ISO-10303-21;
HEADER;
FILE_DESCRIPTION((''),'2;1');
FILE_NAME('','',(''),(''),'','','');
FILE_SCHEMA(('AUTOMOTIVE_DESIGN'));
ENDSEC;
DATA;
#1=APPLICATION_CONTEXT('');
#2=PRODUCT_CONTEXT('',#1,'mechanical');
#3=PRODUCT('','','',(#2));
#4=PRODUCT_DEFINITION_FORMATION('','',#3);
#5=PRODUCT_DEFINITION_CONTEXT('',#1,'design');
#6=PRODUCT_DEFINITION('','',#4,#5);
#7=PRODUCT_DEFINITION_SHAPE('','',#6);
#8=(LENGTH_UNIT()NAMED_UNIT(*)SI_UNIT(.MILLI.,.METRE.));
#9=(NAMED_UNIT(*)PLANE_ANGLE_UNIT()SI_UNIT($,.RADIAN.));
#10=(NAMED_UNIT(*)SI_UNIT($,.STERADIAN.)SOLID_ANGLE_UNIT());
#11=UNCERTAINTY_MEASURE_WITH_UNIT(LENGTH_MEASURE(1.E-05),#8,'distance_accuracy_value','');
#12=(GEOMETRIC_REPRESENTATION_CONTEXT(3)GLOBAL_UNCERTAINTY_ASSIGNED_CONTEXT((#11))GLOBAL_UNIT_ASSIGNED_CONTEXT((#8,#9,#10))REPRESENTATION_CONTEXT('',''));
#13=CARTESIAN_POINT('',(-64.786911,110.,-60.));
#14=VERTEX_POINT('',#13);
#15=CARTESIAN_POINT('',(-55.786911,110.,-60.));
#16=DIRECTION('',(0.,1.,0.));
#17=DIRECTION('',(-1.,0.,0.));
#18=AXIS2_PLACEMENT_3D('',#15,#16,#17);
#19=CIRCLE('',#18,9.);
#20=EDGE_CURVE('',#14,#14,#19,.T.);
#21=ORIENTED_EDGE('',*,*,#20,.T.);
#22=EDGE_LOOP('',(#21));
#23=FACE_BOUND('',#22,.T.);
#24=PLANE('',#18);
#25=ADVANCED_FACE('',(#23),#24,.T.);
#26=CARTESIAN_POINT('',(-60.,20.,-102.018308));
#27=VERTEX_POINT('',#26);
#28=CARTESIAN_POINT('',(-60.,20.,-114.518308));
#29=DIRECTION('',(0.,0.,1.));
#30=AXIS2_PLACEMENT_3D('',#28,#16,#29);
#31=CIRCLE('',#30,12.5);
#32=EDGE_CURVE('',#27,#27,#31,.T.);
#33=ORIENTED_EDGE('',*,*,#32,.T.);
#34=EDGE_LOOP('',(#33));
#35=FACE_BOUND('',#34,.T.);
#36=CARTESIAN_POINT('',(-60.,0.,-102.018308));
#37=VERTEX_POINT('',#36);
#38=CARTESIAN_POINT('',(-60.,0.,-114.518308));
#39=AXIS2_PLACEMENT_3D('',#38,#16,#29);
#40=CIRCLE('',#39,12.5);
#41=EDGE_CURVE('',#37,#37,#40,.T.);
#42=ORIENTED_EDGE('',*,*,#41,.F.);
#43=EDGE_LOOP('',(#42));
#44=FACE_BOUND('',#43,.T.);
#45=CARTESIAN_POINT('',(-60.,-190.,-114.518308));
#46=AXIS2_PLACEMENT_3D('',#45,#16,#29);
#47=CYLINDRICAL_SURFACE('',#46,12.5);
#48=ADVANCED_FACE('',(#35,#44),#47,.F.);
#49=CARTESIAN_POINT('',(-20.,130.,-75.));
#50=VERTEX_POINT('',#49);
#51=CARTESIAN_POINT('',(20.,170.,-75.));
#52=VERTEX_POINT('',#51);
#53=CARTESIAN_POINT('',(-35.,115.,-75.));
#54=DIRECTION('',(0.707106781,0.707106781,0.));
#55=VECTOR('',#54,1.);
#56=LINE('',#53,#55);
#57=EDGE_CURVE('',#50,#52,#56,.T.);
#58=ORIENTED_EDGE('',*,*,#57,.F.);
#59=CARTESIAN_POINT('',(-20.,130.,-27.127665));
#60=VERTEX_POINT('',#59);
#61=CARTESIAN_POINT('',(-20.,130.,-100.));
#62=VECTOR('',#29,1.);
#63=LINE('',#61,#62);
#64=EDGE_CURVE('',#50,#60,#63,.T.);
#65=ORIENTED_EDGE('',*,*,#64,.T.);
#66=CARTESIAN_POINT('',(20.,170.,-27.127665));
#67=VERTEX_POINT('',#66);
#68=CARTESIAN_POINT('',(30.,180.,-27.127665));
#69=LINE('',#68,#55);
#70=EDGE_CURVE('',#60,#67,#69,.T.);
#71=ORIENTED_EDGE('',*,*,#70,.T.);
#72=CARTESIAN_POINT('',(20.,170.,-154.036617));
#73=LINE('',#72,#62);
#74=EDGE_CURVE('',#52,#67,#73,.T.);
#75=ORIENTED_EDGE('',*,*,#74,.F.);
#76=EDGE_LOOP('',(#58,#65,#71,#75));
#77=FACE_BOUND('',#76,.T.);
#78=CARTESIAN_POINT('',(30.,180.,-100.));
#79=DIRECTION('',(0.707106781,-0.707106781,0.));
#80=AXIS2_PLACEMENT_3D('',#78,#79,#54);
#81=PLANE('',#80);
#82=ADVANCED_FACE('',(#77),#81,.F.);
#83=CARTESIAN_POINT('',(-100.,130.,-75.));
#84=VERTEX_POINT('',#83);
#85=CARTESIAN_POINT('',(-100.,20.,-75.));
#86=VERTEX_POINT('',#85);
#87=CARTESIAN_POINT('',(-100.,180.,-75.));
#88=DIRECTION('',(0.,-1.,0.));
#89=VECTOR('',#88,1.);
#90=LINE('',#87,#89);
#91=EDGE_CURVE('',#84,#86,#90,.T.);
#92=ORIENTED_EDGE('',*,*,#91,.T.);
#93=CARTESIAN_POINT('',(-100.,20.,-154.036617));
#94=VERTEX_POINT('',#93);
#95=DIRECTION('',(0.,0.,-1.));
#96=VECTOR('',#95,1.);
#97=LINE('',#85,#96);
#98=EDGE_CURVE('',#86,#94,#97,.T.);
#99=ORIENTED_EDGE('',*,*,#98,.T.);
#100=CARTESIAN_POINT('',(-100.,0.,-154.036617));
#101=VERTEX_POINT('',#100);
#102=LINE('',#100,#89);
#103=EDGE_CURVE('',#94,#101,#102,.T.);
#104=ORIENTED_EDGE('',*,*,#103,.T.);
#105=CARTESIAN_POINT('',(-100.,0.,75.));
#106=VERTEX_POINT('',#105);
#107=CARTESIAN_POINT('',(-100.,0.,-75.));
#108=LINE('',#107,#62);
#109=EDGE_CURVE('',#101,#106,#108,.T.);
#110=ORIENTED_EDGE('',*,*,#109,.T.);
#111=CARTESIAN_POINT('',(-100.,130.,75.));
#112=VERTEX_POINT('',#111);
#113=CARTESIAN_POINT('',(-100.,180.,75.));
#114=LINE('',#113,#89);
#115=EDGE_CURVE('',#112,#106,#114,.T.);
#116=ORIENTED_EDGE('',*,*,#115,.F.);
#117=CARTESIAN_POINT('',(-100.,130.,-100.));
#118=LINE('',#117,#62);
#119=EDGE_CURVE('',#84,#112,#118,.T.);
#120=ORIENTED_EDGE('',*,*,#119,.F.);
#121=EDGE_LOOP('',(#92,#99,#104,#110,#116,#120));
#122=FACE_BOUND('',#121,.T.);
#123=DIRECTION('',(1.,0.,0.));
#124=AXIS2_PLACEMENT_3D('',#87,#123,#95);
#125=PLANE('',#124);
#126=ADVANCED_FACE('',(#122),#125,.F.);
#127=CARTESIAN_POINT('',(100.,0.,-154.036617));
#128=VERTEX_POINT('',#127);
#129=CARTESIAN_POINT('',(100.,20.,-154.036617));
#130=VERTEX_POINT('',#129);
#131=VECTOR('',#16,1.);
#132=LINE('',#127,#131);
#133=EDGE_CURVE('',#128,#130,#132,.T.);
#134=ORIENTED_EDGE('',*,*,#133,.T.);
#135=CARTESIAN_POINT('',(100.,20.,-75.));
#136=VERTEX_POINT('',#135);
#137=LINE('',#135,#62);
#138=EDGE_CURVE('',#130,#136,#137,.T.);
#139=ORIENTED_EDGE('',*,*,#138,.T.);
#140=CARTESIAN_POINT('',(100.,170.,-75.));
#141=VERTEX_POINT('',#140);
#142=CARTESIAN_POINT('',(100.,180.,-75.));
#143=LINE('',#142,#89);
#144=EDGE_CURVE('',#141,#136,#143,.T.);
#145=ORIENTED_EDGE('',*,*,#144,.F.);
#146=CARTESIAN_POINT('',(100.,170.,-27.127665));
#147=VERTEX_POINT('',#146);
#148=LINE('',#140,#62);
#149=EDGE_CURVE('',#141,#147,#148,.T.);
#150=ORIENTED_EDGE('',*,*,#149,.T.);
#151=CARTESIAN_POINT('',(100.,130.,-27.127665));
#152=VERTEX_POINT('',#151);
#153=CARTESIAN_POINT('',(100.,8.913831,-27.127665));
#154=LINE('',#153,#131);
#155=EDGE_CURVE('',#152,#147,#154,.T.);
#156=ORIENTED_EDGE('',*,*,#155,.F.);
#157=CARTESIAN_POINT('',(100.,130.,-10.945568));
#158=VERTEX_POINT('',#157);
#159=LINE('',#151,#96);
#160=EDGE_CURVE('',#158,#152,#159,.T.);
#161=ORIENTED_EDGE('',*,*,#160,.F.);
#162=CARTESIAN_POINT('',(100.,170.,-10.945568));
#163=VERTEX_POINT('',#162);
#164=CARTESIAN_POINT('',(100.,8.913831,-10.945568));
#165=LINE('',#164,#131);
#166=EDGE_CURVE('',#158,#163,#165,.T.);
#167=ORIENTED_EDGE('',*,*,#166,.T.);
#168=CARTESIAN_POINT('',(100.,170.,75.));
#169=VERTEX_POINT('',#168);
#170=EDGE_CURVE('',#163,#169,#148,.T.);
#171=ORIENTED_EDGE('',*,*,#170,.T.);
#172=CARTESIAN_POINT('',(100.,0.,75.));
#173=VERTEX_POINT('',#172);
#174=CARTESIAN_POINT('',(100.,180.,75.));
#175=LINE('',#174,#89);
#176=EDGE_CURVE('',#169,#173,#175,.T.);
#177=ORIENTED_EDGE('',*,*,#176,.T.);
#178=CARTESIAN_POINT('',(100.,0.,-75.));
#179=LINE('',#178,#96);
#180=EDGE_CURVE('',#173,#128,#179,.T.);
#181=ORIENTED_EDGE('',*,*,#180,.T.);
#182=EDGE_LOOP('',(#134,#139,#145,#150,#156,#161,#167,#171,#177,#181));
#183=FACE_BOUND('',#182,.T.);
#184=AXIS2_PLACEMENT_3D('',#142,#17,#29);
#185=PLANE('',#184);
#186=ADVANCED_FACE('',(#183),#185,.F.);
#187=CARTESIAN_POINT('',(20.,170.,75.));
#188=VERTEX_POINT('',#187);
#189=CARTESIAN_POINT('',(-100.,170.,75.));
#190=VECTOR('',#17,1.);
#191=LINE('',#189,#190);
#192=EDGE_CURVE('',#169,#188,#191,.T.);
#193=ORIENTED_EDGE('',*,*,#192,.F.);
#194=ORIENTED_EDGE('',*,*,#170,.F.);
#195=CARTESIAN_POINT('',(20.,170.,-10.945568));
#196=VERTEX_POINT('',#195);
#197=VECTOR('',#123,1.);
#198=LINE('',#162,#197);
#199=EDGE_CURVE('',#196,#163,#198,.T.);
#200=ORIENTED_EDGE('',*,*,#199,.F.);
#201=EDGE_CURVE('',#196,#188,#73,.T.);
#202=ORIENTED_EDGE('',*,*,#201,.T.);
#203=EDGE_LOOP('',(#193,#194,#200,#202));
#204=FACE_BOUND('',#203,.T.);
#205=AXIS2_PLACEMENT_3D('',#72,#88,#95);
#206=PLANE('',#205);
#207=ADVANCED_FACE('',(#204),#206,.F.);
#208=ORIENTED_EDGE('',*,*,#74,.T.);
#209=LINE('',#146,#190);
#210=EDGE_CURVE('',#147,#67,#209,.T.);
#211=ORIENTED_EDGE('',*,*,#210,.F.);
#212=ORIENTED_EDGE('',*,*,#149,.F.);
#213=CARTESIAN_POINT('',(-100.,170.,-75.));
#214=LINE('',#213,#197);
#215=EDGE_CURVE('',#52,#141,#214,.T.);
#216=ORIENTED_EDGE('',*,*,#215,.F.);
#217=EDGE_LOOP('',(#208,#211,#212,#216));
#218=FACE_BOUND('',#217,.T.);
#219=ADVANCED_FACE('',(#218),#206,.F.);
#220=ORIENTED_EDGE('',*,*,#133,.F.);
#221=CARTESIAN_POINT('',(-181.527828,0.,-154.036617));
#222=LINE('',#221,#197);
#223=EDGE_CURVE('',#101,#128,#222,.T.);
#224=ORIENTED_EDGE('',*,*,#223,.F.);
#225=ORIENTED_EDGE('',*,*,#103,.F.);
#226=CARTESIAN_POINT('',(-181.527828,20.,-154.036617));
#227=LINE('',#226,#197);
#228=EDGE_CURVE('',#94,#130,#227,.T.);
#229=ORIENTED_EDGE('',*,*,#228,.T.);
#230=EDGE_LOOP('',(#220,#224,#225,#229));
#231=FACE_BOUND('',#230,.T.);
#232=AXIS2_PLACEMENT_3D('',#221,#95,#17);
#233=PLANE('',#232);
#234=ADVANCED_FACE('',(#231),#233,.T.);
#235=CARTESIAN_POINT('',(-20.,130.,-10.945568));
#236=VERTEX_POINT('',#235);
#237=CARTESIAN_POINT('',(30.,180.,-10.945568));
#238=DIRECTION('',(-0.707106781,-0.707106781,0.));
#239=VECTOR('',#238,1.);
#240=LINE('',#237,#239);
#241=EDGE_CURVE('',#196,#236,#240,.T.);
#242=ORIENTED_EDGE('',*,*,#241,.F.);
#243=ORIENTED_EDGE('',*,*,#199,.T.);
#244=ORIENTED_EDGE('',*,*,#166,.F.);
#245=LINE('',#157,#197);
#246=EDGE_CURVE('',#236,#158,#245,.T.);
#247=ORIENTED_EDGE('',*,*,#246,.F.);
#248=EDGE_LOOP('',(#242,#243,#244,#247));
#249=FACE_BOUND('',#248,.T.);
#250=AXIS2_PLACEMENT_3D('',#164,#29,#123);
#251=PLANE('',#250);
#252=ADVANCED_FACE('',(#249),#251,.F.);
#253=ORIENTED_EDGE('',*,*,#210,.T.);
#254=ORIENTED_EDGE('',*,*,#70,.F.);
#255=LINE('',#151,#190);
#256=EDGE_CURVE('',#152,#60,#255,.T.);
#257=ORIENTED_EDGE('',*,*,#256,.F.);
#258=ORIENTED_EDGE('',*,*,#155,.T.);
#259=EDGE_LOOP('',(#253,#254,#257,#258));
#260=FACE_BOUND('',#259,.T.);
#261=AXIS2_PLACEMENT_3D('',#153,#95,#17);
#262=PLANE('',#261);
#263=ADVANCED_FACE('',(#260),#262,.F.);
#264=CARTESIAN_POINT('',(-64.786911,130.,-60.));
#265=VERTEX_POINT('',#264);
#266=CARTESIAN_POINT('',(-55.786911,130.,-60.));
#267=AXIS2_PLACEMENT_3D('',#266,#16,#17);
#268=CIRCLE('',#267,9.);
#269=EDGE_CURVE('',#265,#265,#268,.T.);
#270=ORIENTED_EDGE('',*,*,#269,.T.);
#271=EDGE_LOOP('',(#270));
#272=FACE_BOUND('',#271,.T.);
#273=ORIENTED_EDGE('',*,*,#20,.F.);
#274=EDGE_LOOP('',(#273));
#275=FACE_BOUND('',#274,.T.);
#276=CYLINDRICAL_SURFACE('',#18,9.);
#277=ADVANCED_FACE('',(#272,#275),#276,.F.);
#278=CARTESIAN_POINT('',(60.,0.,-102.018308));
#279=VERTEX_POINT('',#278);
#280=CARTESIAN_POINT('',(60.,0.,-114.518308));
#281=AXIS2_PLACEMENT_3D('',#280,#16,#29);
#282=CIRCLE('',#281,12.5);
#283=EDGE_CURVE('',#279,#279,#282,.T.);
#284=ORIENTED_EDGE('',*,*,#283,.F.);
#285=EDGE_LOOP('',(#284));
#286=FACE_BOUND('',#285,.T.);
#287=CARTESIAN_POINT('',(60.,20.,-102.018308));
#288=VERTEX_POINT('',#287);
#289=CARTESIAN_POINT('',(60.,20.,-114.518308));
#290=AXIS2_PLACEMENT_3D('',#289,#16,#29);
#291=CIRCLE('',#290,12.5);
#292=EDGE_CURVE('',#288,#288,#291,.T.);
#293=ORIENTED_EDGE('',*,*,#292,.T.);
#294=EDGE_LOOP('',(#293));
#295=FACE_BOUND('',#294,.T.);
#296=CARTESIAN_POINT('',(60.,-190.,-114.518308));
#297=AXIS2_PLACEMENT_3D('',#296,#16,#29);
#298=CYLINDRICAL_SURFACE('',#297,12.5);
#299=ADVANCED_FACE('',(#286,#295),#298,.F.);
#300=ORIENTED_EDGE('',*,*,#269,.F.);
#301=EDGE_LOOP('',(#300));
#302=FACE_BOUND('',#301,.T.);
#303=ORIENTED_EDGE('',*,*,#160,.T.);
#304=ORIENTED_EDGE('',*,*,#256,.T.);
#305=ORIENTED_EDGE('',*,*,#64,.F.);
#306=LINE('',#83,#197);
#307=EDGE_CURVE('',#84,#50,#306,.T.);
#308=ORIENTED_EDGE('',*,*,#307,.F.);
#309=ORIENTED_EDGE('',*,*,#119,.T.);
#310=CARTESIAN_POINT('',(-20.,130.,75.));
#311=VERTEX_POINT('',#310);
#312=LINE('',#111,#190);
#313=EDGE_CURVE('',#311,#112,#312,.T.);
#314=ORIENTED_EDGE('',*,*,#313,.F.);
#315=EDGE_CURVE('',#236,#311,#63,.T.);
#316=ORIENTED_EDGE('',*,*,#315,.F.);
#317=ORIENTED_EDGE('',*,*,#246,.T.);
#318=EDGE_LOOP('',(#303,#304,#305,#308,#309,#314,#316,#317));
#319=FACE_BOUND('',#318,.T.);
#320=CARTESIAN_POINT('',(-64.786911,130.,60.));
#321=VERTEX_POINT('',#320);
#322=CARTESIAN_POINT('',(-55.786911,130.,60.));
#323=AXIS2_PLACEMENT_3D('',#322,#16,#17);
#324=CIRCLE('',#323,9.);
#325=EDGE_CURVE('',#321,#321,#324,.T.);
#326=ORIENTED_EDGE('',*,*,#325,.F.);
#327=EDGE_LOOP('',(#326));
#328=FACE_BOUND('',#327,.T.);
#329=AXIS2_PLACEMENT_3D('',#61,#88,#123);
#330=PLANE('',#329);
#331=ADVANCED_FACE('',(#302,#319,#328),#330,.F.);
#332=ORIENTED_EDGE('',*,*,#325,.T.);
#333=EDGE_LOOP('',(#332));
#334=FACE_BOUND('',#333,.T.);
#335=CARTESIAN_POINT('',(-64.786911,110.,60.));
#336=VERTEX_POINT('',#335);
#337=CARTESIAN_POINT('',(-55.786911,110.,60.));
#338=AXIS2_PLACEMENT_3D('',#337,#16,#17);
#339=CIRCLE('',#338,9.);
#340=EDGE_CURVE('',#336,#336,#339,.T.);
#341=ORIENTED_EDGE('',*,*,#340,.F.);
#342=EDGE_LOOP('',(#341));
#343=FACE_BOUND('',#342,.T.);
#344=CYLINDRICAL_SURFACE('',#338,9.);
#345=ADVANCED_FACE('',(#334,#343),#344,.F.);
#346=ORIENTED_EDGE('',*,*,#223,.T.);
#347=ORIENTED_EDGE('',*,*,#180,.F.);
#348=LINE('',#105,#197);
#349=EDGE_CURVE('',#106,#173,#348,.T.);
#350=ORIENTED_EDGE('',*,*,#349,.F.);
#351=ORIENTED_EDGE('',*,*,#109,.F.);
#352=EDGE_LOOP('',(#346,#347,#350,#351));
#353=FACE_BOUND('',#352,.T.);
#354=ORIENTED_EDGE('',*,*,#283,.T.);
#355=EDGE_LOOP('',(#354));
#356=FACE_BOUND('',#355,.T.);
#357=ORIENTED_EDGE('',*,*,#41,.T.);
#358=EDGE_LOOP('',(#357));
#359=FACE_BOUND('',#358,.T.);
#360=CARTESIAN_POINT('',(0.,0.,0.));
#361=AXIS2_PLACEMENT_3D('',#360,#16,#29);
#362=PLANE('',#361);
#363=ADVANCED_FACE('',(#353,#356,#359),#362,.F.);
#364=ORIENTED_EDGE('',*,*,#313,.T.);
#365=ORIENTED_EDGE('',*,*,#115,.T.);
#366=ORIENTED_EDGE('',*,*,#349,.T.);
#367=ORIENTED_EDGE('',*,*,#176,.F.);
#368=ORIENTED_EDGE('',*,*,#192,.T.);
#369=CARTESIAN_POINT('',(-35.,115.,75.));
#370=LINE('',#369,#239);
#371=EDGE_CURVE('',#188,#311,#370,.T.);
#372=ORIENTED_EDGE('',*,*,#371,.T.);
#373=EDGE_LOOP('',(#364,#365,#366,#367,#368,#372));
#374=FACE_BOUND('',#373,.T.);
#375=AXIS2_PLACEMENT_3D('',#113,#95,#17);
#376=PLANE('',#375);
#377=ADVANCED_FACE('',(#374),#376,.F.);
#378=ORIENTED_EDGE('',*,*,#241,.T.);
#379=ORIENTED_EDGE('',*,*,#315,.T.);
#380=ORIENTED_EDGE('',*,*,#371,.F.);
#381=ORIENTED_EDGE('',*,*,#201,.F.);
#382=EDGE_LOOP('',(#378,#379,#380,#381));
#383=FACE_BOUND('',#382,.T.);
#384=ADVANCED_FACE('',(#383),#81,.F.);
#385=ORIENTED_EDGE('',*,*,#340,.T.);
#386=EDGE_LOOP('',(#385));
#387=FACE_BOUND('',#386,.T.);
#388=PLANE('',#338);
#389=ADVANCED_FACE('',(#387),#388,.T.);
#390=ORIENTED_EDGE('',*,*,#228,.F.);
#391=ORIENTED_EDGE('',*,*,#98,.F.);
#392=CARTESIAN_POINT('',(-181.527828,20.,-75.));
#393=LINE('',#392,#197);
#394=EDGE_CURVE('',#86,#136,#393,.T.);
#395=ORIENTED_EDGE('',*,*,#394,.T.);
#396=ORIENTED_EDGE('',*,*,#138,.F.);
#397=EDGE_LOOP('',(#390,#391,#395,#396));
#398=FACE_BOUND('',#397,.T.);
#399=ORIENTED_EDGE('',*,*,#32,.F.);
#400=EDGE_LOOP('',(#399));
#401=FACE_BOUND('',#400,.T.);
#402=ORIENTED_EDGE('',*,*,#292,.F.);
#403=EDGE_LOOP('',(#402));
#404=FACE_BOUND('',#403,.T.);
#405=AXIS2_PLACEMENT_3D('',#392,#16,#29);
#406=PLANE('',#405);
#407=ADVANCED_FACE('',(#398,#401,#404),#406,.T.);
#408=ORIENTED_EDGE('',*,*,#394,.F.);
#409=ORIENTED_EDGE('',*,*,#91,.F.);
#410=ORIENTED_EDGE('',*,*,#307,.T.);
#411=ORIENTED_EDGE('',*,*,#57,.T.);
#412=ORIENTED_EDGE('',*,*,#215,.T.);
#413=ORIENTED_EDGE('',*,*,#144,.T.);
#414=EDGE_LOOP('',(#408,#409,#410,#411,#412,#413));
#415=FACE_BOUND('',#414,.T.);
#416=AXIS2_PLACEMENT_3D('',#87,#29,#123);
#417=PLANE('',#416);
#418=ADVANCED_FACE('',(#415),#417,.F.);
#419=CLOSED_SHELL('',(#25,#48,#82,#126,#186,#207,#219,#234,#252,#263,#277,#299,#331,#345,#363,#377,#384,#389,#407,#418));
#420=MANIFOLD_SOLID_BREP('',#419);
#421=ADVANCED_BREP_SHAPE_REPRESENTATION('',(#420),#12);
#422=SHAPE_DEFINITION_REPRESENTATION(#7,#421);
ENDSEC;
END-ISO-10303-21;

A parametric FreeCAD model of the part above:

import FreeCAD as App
import Part
import Sketcher
Q = App.Units.Quantity


def add_polygon(sketch, points):
    """Adds a closed chain of lines whose ends are joined by coincident constraints."""
    first, n = sketch.GeometryCount, len(points)
    for a, b in zip(points, points[1:] + points[:1]):
        sketch.addGeometry(Part.LineSegment(App.Vector(*a, 0), App.Vector(*b, 0)), False)
    for i in range(n):
        sketch.addConstraint(Sketcher.Constraint("Coincident", first + i, 2, first + (i + 1) % n, 1))

doc = App.newDocument("Part")
body = doc.addObject("PartDesign::Body", "Body")

# Sketch on XZ plane
sketch1 = body.newObject("Sketcher::SketchObject", "Sketch")
sketch1.AttachmentSupport = (doc.getObject("XZ_Plane"), [""])
sketch1.MapMode = "FlatFace"
add_polygon(sketch1, [(-100, -75), (-100, 75), (100, 75), (100, -75)])  # lines 0-3
sketch1.addConstraint([
    Sketcher.Constraint("Vertical", 0),
    Sketcher.Constraint("Horizontal", 1),
    Sketcher.Constraint("Vertical", 2),
    Sketcher.Constraint("Horizontal", 3),
    Sketcher.Constraint("Symmetric", 0, 2, 2, 2, -1, 1),
    Sketcher.Constraint("DistanceX", 1, 1, 1, 2, Q("200 mm")),
    Sketcher.Constraint("DistanceY", 0, 1, 0, 2, Q("150 mm")),
])
pad1 = body.newObject("PartDesign::Pad", "Pad")
pad1.Profile = sketch1
pad1.Length = 180
pad1.Reversed = True

# Sketch on XY plane
sketch2 = body.newObject("Sketcher::SketchObject", "Sketch001")
sketch2.AttachmentSupport = (doc.getObject("XY_Plane"), [""])
sketch2.MapMode = "FlatFace"
add_polygon(sketch2, [(30, 180), (-100, 180), (-100, 130), (-20, 130)])  # lines 0-3
sketch2.addConstraint([
    Sketcher.Constraint("Horizontal", 0),
    Sketcher.Constraint("Vertical", 1),
    Sketcher.Constraint("Horizontal", 2),
    Sketcher.Constraint("DistanceX", 0, 2, 0, 1, Q("130 mm")),
    Sketcher.Constraint("DistanceX", 2, 1, 2, 2, Q("80 mm")),
    Sketcher.Constraint("DistanceY", 1, 2, 1, 1, Q("50 mm")),
    Sketcher.Constraint("DistanceX", 0, 2, -1, 1, Q("100 mm")),
    Sketcher.Constraint("DistanceY", -1, 1, 0, 2, Q("180 mm")),
])
pocket1 = body.newObject("PartDesign::Pocket", "Pocket")
pocket1.Profile = sketch2
pocket1.Length = 200
pocket1.Midplane = True

# Sketch on XZ plane
sketch3 = body.newObject("Sketcher::SketchObject", "Sketch002")
sketch3.AttachmentSupport = (doc.getObject("XZ_Plane"), [""])
sketch3.MapMode = "FlatFace"
sketch3.AttachmentOffset = App.Placement(App.Vector(0, 0, -180), App.Rotation())
add_polygon(sketch3, [(-20, -27), (-20, -11), (100, -11), (100, -27)])  # lines 0-3
sketch3.addConstraint([
    Sketcher.Constraint("Vertical", 0),
    Sketcher.Constraint("Horizontal", 1),
    Sketcher.Constraint("Vertical", 2),
    Sketcher.Constraint("Horizontal", 3),
    Sketcher.Constraint("DistanceX", 1, 1, 1, 2, Q("120 mm")),
    Sketcher.Constraint("DistanceX", 0, 2, -1, 1, Q("20 mm")),
    Sketcher.Constraint("DistanceY", 0, 1, 0, 2, Q("16.182097 mm")),
    Sketcher.Constraint("DistanceY", 0, 2, -1, 1, Q("10.945568 mm")),
])
pocket2 = body.newObject("PartDesign::Pocket", "Pocket001")
pocket2.Profile = sketch3
pocket2.Length = 50
pocket2.Reversed = True

# Sketch on XZ plane
sketch4 = body.newObject("Sketcher::SketchObject", "Sketch003")
sketch4.AttachmentSupport = (doc.getObject("XZ_Plane"), [""])
sketch4.MapMode = "FlatFace"
sketch4.AttachmentOffset = App.Placement(App.Vector(0, 0, -130), App.Rotation())
sketch4.addGeometry([
    Part.Circle(App.Vector(-56, -60, 0), App.Vector(0, 0, 1), 9),
    Part.Circle(App.Vector(-56, 60, 0), App.Vector(0, 0, 1), 9),
], False)
sketch4.addConstraint([
    Sketcher.Constraint("Equal", 0, 1),
    Sketcher.Constraint("Symmetric", 0, 3, 1, 3, -1),
    Sketcher.Constraint("Diameter", 0, Q("18 mm")),
    Sketcher.Constraint("DistanceY", 0, 3, -1, 1, Q("60 mm")),
    Sketcher.Constraint("DistanceX", 0, 3, -1, 1, Q("55.786911 mm")),
])
pocket3 = body.newObject("PartDesign::Pocket", "Pocket002")
pocket3.Profile = sketch4
pocket3.Length = 20
pocket3.Reversed = True

# Sketch on YZ plane
sketch5 = body.newObject("Sketcher::SketchObject", "Sketch004")
sketch5.AttachmentSupport = (doc.getObject("YZ_Plane"), [""])
sketch5.MapMode = "FlatFace"
sketch5.AttachmentOffset = App.Placement(App.Vector(0, 0, 100), App.Rotation())
add_polygon(sketch5, [(20, -75), (0, -75), (0, -154), (20, -154)])  # lines 0-3
sketch5.addConstraint([
    Sketcher.Constraint("Horizontal", 0),
    Sketcher.Constraint("Vertical", 1),
    Sketcher.Constraint("Horizontal", 2),
    Sketcher.Constraint("Vertical", 3),
    Sketcher.Constraint("PointOnObject", 0, 2, -2),
    Sketcher.Constraint("DistanceX", 0, 2, 0, 1, Q("20 mm")),
    Sketcher.Constraint("DistanceY", 0, 2, -1, 1, Q("75 mm")),
    Sketcher.Constraint("DistanceY", 1, 2, 1, 1, Q("79.036617 mm")),
])
pad2 = body.newObject("PartDesign::Pad", "Pad001")
pad2.Profile = sketch5
pad2.Length = 200
pad2.Reversed = True

# Sketch on XZ plane
sketch6 = body.newObject("Sketcher::SketchObject", "Sketch005")
sketch6.AttachmentSupport = (doc.getObject("XZ_Plane"), [""])
sketch6.MapMode = "FlatFace"
sketch6.AttachmentOffset = App.Placement(App.Vector(0, 0, -20), App.Rotation())
sketch6.addGeometry([
    Part.Circle(App.Vector(-60, -115, 0), App.Vector(0, 0, 1), 12),
    Part.Circle(App.Vector(60, -115, 0), App.Vector(0, 0, 1), 12),
], False)
sketch6.addConstraint([
    Sketcher.Constraint("Equal", 0, 1),
    Sketcher.Constraint("Symmetric", 0, 3, 1, 3, -2),
    Sketcher.Constraint("Diameter", 0, Q("25 mm")),
    Sketcher.Constraint("DistanceX", 0, 3, -1, 1, Q("60 mm")),
    Sketcher.Constraint("DistanceY", 0, 3, -1, 1, Q("114.518308 mm")),
])
pocket4 = body.newObject("PartDesign::Pocket", "Pocket003")
pocket4.Profile = sketch6
pocket4.Length = 210
pocket4.Reversed = True

# Sketch on XY plane
sketch7 = body.newObject("Sketcher::SketchObject", "Sketch006")
sketch7.AttachmentSupport = (doc.getObject("XY_Plane"), [""])
sketch7.MapMode = "FlatFace"
sketch7.AttachmentOffset = App.Placement(App.Vector(0, 0, 75), App.Rotation())
add_polygon(sketch7, [(20, 170), (112, 170), (112, 196), (7, 196)])  # lines 0-3
sketch7.addConstraint([
    Sketcher.Constraint("Horizontal", 0),
    Sketcher.Constraint("Vertical", 1),
    Sketcher.Constraint("Horizontal", 2),
    Sketcher.Constraint("DistanceY", -1, 1, 0, 2, Q("170 mm")),
    Sketcher.Constraint("DistanceX", -1, 1, 3, 2, Q("20 mm")),
    Sketcher.Constraint("DistanceY", 1, 1, 1, 2, Q("25.82174 mm")),
    Sketcher.Constraint("Distance", 3, Q("29.131418 mm")),
    Sketcher.Constraint("DistanceX", 0, 1, 0, 2, Q("92.388946 mm")),
])
pocket5 = body.newObject("PartDesign::Pocket", "Pocket004")
pocket5.Profile = sketch7
pocket5.Type = "ThroughAll"
pocket5.Midplane = True

doc.recompute()
